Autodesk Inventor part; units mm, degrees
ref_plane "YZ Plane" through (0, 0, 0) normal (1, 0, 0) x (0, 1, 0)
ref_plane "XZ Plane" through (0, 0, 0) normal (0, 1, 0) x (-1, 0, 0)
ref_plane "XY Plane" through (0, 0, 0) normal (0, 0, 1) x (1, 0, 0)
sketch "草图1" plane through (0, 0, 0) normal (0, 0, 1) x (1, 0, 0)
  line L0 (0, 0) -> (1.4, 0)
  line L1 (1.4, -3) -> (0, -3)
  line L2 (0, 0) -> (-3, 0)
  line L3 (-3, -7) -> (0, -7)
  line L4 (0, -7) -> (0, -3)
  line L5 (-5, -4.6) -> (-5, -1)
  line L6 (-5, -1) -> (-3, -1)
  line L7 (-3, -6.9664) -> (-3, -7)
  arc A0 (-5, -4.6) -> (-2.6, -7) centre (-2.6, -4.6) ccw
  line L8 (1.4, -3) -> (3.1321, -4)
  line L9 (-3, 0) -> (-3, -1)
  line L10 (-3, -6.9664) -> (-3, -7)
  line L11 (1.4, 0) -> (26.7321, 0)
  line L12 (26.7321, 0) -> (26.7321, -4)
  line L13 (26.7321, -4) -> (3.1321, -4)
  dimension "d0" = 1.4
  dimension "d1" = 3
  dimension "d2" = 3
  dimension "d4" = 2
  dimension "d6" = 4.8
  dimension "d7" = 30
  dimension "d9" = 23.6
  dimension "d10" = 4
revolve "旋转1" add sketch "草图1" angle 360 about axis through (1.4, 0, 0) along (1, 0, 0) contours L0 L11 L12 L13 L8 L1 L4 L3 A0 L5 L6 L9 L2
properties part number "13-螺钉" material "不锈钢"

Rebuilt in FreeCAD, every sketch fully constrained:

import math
import FreeCAD as App
import Part
import Sketcher
Q = App.Units.Quantity

doc = App.newDocument("Part")
params = doc.addObject("Spreadsheet::Sheet", "Params")
for row, (alias, value) in enumerate([
    ("sketch1_radius", "2.4 mm"),
    ("sketch1_width", "2 mm"),
    ("sketch1_height", "4 mm"),
    ("sketch1_length", "2 mm"),
    ("sketch1_width2", "1.4 mm"),
    ("revolution_angle", "360 deg"),
], start=1):
    params.set(f"A{row}", alias)
    params.set(f"B{row}", "=" + value)
    params.setAlias(f"B{row}", alias)

body = doc.addObject("PartDesign::Body", "Body")

sketch1 = body.newObject("Sketcher::SketchObject", "Sketch")
sketch1.AttachmentSupport = (doc.getObject("XY_Plane"), [""])
sketch1.MapMode = "FlatFace"
sketch1.addGeometry([
    Part.LineSegment(App.Vector(26.7, 0, 0), App.Vector(-3, 0, 0)),
    Part.LineSegment(App.Vector(-3, 0, 0), App.Vector(-3, -1, 0)),
    Part.LineSegment(App.Vector(-3, -1, 0), App.Vector(-5, -1, 0)),
    Part.LineSegment(App.Vector(-5, -1, 0), App.Vector(-5, -4.6, 0)),
    Part.ArcOfCircle(Part.Circle(App.Vector(-2.6, -4.6, 0), App.Vector(0, 0, 1), 2.4), math.radians(180), math.radians(270)),
    Part.LineSegment(App.Vector(-2.6, -7, 0), App.Vector(0, -7, 0)),
    Part.LineSegment(App.Vector(0, -7, 0), App.Vector(0, -3, 0)),
    Part.LineSegment(App.Vector(0, -3, 0), App.Vector(1.4, -3, 0)),
    Part.LineSegment(App.Vector(1.4, -3, 0), App.Vector(3.1, -4, 0)),
    Part.LineSegment(App.Vector(3.1, -4, 0), App.Vector(26.7, -4, 0)),
    Part.LineSegment(App.Vector(26.7, -4, 0), App.Vector(26.7, 0, 0)),
], False)
sketch1.addConstraint([
    Sketcher.Constraint("Coincident", 0, 2, 1, 1),
    Sketcher.Constraint("Coincident", 1, 2, 2, 1),
    Sketcher.Constraint("Coincident", 2, 2, 3, 1),
    Sketcher.Constraint("Tangent", 3, 2, 4, 1),
    Sketcher.Constraint("Tangent", 4, 2, 5, 1),
    Sketcher.Constraint("Coincident", 5, 2, 6, 1),
    Sketcher.Constraint("Coincident", 6, 2, 7, 1),
    Sketcher.Constraint("Coincident", 7, 2, 8, 1),
    Sketcher.Constraint("Coincident", 8, 2, 9, 1),
    Sketcher.Constraint("Coincident", 9, 2, 10, 1),
    Sketcher.Constraint("Coincident", 10, 2, 0, 1),
    Sketcher.Constraint("Horizontal", 0),
    Sketcher.Constraint("Vertical", 1),
    Sketcher.Constraint("Horizontal", 2),
    Sketcher.Constraint("Vertical", 3),
    Sketcher.Constraint("Horizontal", 5),
    Sketcher.Constraint("Vertical", 6),
    Sketcher.Constraint("Horizontal", 7),
    Sketcher.Constraint("Horizontal", 9),
    Sketcher.Constraint("Vertical", 10),
    Sketcher.Constraint("PointOnObject", 0, 2, -1),
    Sketcher.Constraint("PointOnObject", 5, 2, -2),
    Sketcher.Constraint("Equal", 6, 10),
    Sketcher.Constraint("Radius", 4, Q("2.4 mm")),
    Sketcher.Constraint("DistanceX", 2, 2, 2, 1, Q("2 mm")),
    Sketcher.Constraint("DistanceY", 6, 1, 6, 2, Q("4 mm")),
    Sketcher.Constraint("Distance", 8, Q("2 mm")),
    Sketcher.Constraint("DistanceX", 7, 1, 7, 2, Q("1.4 mm")),
    Sketcher.Constraint("DistanceX", 9, 1, 9, 2, Q("23.6 mm")),
    Sketcher.Constraint("DistanceX", 0, 2, -1, 1, Q("3 mm")),
    Sketcher.Constraint("DistanceY", 6, 2, -1, 1, Q("3 mm")),
    Sketcher.Constraint("DistanceY", 6, 2, 1, 2, Q("2 mm")),
])
sketch1.setExpression("Constraints[23]", "Params.sketch1_radius")
sketch1.setExpression("Constraints[24]", "Params.sketch1_width")
sketch1.setExpression("Constraints[25]", "Params.sketch1_height")
sketch1.setExpression("Constraints[26]", "Params.sketch1_length")
sketch1.setExpression("Constraints[27]", "Params.sketch1_width2")
revolution = body.newObject("PartDesign::Revolution", "Revolution")
revolution.Profile = sketch1
revolution.ReferenceAxis = (sketch1, ["H_Axis"])
revolution.setExpression("Angle", "Params.revolution_angle")

doc.recompute()
